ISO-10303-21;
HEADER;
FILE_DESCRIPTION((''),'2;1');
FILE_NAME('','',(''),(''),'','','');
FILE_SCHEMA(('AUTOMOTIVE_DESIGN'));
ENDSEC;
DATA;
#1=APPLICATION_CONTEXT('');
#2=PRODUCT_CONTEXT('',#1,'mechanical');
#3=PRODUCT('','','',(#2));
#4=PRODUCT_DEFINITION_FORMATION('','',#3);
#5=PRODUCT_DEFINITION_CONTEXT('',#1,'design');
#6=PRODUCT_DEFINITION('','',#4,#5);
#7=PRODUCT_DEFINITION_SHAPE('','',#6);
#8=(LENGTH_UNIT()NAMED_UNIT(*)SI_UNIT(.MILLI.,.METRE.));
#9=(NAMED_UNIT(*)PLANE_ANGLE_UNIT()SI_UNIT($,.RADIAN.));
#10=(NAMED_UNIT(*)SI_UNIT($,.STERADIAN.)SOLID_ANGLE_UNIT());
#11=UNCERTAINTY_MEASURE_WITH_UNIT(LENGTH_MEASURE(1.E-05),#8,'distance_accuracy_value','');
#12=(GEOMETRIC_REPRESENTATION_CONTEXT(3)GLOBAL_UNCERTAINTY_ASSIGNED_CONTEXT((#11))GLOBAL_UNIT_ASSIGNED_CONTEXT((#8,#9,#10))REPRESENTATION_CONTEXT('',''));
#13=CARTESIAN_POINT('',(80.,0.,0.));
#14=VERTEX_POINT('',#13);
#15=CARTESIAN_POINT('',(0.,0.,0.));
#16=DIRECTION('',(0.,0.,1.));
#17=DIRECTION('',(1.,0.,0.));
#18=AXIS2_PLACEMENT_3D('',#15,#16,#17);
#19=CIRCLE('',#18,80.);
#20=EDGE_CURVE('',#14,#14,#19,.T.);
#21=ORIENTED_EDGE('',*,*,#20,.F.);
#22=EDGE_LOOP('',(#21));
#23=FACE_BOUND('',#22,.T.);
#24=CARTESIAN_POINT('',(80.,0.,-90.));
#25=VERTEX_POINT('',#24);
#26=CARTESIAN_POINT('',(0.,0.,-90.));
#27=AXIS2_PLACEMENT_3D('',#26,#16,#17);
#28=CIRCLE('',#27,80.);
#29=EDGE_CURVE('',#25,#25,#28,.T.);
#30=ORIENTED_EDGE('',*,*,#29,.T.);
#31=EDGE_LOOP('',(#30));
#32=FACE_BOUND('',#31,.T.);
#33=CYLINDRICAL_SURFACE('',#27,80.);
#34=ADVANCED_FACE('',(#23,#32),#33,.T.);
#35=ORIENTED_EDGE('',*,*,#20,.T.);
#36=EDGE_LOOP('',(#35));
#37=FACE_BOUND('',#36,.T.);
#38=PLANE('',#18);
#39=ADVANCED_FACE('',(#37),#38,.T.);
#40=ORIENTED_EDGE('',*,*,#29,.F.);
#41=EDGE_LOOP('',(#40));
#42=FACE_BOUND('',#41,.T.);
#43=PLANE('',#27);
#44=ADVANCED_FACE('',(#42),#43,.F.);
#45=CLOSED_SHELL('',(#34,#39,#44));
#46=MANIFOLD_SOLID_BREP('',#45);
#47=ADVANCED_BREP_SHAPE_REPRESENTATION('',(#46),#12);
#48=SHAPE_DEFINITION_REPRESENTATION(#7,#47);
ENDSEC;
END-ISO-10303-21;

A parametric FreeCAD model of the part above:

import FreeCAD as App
import Part
import Sketcher

doc = App.newDocument("Part")
body = doc.addObject("PartDesign::Body", "Body")

# Sketch on XY plane
sketch1 = body.newObject("Sketcher::SketchObject", "Sketch")
sketch1.AttachmentSupport = (doc.getObject("XY_Plane"), [""])
sketch1.MapMode = "FlatFace"
sketch1.addGeometry(Part.Circle(App.Vector(0, 0, 0), App.Vector(0, 0, 1), 80), False)
sketch1.addConstraint(Sketcher.Constraint("Coincident", 0, 3, -1, 1))
sketch1.addConstraint(Sketcher.Constraint("Diameter", 0, 160.0))
pad1 = body.newObject("PartDesign::Pad", "Pad")
pad1.Profile = sketch1
pad1.Length = 90
pad1.Reversed = True

doc.recompute()
